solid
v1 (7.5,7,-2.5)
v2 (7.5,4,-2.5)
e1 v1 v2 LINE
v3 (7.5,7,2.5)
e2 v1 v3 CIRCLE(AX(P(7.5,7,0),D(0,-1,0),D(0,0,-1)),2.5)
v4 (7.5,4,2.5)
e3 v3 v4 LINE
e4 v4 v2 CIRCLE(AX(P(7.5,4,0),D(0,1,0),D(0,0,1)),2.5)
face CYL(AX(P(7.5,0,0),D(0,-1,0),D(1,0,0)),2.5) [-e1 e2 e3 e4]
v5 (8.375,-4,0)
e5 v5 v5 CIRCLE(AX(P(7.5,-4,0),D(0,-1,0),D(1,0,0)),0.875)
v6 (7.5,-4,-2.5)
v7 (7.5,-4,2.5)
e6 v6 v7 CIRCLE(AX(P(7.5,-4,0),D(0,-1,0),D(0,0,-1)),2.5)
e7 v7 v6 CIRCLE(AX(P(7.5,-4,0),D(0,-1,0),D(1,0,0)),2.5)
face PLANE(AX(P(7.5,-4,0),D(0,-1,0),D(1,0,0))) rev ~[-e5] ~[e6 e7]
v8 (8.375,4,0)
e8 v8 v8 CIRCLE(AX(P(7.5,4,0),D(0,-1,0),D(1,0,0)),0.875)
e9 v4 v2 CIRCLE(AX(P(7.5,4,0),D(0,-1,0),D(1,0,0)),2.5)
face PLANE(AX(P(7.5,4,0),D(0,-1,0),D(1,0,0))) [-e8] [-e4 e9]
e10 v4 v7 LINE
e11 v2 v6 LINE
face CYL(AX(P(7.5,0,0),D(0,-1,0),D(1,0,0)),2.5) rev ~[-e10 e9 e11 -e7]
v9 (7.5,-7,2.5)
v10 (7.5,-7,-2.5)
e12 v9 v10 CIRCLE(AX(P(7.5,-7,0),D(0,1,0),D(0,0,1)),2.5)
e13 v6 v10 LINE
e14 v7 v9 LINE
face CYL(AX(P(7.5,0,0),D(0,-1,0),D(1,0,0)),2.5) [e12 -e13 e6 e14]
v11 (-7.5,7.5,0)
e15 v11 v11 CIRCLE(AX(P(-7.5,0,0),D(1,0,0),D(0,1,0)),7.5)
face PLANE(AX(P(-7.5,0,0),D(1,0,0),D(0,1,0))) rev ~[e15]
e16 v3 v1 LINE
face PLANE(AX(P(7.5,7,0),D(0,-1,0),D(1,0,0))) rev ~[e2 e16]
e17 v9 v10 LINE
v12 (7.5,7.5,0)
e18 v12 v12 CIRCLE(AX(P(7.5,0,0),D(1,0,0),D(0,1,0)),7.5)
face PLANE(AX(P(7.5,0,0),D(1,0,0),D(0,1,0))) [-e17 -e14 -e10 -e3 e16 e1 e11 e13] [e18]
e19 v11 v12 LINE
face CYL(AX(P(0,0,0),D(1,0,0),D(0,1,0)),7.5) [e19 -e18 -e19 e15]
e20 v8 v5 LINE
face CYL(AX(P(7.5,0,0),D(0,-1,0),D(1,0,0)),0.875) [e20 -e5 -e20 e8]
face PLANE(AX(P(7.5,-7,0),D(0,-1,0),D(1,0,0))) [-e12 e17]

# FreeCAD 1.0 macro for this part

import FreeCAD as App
import Part
import Sketcher

V = App.Vector

doc = App.newDocument("Part")
params = doc.addObject("Spreadsheet::Sheet", "Params")
for row, (alias, value) in enumerate([
    ("sketch1_diameter", "15 mm"),
    ("pad1_length", "15 mm"),
    ("sketch2_diameter", "5 mm"),
    ("pad2_length", "14 mm"),
    ("sketch3_diameter", "5 mm"),
    ("pocket1_length", "8 mm"),
    ("sketch4_diameter", "1.75 mm"),
    ("pad3_length", "8 mm"),
], start=1):
    params.set(f"A{row}", alias)
    params.set(f"B{row}", "=" + value)
    params.setAlias(f"B{row}", alias)

body = doc.addObject("PartDesign::Body", "Body")

# Sketch on YZ plane
sketch1 = body.newObject("Sketcher::SketchObject", "Sketch")
sketch1.AttachmentSupport = (doc.getObject("YZ_Plane"), [""])
sketch1.MapMode = "FlatFace"
sketch1.addGeometry(Part.Circle(V(0, 0, 0), V(0, 0, 1), 7.5), False)
sketch1.addConstraint([
    Sketcher.Constraint("Coincident", 0, 3, -1, 1),
    Sketcher.Constraint("Diameter", 0, 15.0),
])
sketch1.setExpression("Constraints[1]", "Params.sketch1_diameter")
pad1 = body.newObject("PartDesign::Pad", "Pad")
pad1.Profile = sketch1
pad1.setExpression("Length", "Params.pad1_length")
pad1.Midplane = True

# Sketch on XZ plane
sketch2 = body.newObject("Sketcher::SketchObject", "Sketch001")
sketch2.AttachmentSupport = (doc.getObject("XZ_Plane"), [""])
sketch2.MapMode = "FlatFace"
sketch2.addGeometry(Part.Circle(V(7.5, 0, 0), V(0, 0, 1), 2.5), False)
sketch2.addConstraint([
    Sketcher.Constraint("PointOnObject", 0, 3, -1),
    Sketcher.Constraint("Diameter", 0, 5.0),
    Sketcher.Constraint("DistanceX", -1, 1, 0, 3, 7.5),
])
sketch2.setExpression("Constraints[1]", "Params.sketch2_diameter")
pad2 = body.newObject("PartDesign::Pad", "Pad001")
pad2.Profile = sketch2
pad2.setExpression("Length", "Params.pad2_length")
pad2.Midplane = True

# Sketch on XZ plane
sketch3 = body.newObject("Sketcher::SketchObject", "Sketch002")
sketch3.AttachmentSupport = (doc.getObject("XZ_Plane"), [""])
sketch3.MapMode = "FlatFace"
sketch3.addGeometry(Part.Circle(V(7.5, 0, 0), V(0, 0, 1), 2.5), False)
sketch3.addConstraint([
    Sketcher.Constraint("PointOnObject", 0, 3, -1),
    Sketcher.Constraint("Diameter", 0, 5.0),
    Sketcher.Constraint("DistanceX", -1, 1, 0, 3, 7.5),
])
sketch3.setExpression("Constraints[1]", "Params.sketch3_diameter")
pocket1 = body.newObject("PartDesign::Pocket", "Pocket")
pocket1.Profile = sketch3
pocket1.setExpression("Length", "Params.pocket1_length")
pocket1.Midplane = True

# Sketch on XZ plane
sketch4 = body.newObject("Sketcher::SketchObject", "Sketch003")
sketch4.AttachmentSupport = (doc.getObject("XZ_Plane"), [""])
sketch4.MapMode = "FlatFace"
sketch4.addGeometry(Part.Circle(V(7.5, 0, 0), V(0, 0, 1), 0.875), False)
sketch4.addConstraint([
    Sketcher.Constraint("PointOnObject", 0, 3, -1),
    Sketcher.Constraint("Diameter", 0, 1.75),
    Sketcher.Constraint("DistanceX", -1, 1, 0, 3, 7.5),
])
sketch4.setExpression("Constraints[1]", "Params.sketch4_diameter")
pad3 = body.newObject("PartDesign::Pad", "Pad002")
pad3.Profile = sketch4
pad3.setExpression("Length", "Params.pad3_length")
pad3.Midplane = True

doc.recompute()
